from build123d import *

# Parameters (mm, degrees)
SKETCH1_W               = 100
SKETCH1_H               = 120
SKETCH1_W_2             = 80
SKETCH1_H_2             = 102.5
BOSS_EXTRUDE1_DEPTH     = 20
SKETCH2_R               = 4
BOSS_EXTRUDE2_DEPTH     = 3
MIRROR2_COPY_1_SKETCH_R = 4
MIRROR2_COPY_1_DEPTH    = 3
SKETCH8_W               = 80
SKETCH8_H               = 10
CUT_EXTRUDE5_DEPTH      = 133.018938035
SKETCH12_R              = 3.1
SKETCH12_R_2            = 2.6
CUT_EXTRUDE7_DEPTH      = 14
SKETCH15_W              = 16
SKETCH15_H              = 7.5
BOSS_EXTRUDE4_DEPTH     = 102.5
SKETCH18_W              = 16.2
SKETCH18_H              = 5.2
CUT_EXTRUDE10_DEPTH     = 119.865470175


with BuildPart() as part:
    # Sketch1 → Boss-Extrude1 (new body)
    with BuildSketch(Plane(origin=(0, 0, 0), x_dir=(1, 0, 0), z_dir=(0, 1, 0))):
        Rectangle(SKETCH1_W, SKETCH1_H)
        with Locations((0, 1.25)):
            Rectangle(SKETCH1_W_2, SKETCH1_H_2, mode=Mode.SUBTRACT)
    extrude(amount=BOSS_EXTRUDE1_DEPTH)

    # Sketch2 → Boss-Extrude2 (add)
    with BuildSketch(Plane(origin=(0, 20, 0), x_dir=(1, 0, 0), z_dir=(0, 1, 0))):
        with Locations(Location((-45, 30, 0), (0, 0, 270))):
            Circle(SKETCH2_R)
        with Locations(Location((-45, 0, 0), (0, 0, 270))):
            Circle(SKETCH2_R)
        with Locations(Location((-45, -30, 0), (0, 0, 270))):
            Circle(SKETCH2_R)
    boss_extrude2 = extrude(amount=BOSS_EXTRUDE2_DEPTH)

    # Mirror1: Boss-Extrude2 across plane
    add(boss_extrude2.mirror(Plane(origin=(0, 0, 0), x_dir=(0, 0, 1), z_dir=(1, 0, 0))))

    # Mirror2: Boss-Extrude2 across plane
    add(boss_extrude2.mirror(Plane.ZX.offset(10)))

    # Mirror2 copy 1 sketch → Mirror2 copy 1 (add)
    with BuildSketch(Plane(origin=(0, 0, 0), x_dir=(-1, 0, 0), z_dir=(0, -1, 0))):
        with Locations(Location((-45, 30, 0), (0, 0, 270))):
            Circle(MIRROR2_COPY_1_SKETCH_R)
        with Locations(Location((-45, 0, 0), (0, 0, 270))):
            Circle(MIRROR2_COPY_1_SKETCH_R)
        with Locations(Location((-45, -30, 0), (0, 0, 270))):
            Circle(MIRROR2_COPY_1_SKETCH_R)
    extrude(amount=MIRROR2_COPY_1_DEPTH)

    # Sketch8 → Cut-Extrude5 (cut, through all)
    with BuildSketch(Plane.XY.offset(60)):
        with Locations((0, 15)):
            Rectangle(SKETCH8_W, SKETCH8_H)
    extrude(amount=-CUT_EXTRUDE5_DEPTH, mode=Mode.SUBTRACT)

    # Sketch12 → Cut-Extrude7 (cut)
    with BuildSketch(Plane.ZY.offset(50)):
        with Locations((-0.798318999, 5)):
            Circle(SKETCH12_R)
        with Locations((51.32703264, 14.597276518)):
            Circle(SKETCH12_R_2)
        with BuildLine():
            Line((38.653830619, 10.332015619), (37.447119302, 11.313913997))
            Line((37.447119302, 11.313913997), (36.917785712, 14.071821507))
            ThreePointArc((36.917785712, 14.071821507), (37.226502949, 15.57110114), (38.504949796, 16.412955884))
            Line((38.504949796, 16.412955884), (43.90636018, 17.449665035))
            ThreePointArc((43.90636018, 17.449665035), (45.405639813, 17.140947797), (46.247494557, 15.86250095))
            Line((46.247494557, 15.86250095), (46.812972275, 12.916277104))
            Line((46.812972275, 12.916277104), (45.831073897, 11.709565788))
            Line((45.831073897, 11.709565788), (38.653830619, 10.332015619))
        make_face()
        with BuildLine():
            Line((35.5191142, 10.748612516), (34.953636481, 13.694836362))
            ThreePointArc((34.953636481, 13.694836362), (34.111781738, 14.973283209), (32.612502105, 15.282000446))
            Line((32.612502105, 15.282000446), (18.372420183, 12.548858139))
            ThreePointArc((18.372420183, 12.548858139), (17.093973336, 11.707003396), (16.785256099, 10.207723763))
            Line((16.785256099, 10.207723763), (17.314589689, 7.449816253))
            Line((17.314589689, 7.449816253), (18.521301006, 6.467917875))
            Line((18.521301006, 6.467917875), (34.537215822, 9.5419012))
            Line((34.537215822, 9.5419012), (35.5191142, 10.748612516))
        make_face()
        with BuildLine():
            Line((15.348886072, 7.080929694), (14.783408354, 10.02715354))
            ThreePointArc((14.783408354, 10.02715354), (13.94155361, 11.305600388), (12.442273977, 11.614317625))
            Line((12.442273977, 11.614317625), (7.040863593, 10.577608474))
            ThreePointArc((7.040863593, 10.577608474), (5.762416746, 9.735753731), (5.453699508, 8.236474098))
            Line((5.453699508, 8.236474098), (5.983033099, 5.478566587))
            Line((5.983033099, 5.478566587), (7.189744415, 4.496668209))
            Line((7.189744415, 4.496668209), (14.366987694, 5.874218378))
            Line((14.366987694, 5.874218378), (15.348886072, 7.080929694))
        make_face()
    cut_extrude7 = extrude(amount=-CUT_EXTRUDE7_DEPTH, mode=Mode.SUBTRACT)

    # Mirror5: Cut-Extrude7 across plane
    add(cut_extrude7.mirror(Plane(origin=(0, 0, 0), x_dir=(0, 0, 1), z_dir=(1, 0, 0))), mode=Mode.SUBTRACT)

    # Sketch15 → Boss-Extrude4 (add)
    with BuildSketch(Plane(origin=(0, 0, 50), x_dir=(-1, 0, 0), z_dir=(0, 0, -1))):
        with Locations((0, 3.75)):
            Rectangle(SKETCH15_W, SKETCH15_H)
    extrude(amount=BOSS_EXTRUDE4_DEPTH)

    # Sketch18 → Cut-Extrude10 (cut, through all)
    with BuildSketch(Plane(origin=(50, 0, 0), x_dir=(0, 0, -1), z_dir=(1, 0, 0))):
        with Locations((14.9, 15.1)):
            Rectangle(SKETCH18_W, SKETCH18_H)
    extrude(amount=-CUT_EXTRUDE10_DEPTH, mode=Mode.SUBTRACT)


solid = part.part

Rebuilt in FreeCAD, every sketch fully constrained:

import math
import FreeCAD as App
import Part
import Sketcher

V = App.Vector
Q = App.Units.Quantity

doc = App.newDocument("Part")
body = doc.addObject("PartDesign::Body", "Body")

sketch1 = body.newObject("Sketcher::SketchObject", "Sketch")
sketch1.AttachmentSupport = (doc.getObject("XZ_Plane"), [""])
sketch1.MapMode = "FlatFace"
sketch1.addGeometry([
    Part.LineSegment(V(-50, -60, 0), V(-50, 60, 0)),
    Part.LineSegment(V(-50, 60, 0), V(50, 60, 0)),
    Part.LineSegment(V(50, 60, 0), V(50, -60, 0)),
    Part.LineSegment(V(50, -60, 0), V(-50, -60, 0)),
    Part.LineSegment(V(40, 50, 0), V(-40, 50, 0)),
    Part.LineSegment(V(-40, 50, 0), V(-40, -52.5, 0)),
    Part.LineSegment(V(-40, -52.5, 0), V(40, -52.5, 0)),
    Part.LineSegment(V(40, -52.5, 0), V(40, 50, 0)),
], False)
sketch1.addConstraint([
    Sketcher.Constraint("Coincident", 0, 2, 1, 1),
    Sketcher.Constraint("Coincident", 1, 2, 2, 1),
    Sketcher.Constraint("Coincident", 2, 2, 3, 1),
    Sketcher.Constraint("Coincident", 3, 2, 0, 1),
    Sketcher.Constraint("Coincident", 4, 2, 5, 1),
    Sketcher.Constraint("Coincident", 5, 2, 6, 1),
    Sketcher.Constraint("Coincident", 6, 2, 7, 1),
    Sketcher.Constraint("Coincident", 7, 2, 4, 1),
    Sketcher.Constraint("Vertical", 0),
    Sketcher.Constraint("Horizontal", 1),
    Sketcher.Constraint("Vertical", 2),
    Sketcher.Constraint("Horizontal", 3),
    Sketcher.Constraint("Horizontal", 4),
    Sketcher.Constraint("Vertical", 5),
    Sketcher.Constraint("Horizontal", 6),
    Sketcher.Constraint("Vertical", 7),
    Sketcher.Constraint("Symmetric", 0, 2, 2, 2, -1, 1),
    Sketcher.Constraint("DistanceX", 1, 1, 1, 2, Q("100 mm")),
    Sketcher.Constraint("DistanceX", 4, 2, 4, 1, Q("80 mm")),
    Sketcher.Constraint("DistanceY", 0, 1, 0, 2, Q("120 mm")),
    Sketcher.Constraint("DistanceY", 5, 2, 5, 1, Q("102.5 mm")),
    Sketcher.Constraint("DistanceX", 4, 2, -1, 1, Q("40 mm")),
    Sketcher.Constraint("DistanceY", -1, 1, 4, 2, Q("50 mm")),
])
pad1 = body.newObject("PartDesign::Pad", "Pad")
pad1.Profile = sketch1
pad1.Length = 20
pad1.Reversed = True

sketch2 = body.newObject("Sketcher::SketchObject", "Sketch001")
sketch2.AttachmentSupport = (doc.getObject("XZ_Plane"), [""])
sketch2.MapMode = "FlatFace"
sketch2.AttachmentOffset = App.Placement(V(0, 0, -20), App.Rotation())
sketch2.addGeometry([
    Part.Circle(V(-45, -30, 0), V(0, 0, 1), 4),
    Part.Circle(V(-45, 0, 0), V(0, 0, 1), 4),
    Part.Circle(V(-45, 30, 0), V(0, 0, 1), 4),
], False)
sketch2.addConstraint([
    Sketcher.Constraint("Equal", 0, 1),
    Sketcher.Constraint("Equal", 1, 2),
    Sketcher.Constraint("Symmetric", 0, 3, 2, 3, -1),
    Sketcher.Constraint("PointOnObject", 1, 3, -1),
    Sketcher.Constraint("Vertical", 0, 3, 1, 3),
    Sketcher.Constraint("Diameter", 0, Q("8 mm")),
    Sketcher.Constraint("DistanceX", 0, 3, -1, 1, Q("45 mm")),
    Sketcher.Constraint("DistanceY", 0, 3, -1, 1, Q("30 mm")),
])
pad2 = body.newObject("PartDesign::Pad", "Pad001")
pad2.Profile = sketch2
pad2.Length = 3
pad2.Reversed = True
doc.recompute()

mirrored = body.newObject("PartDesign::Mirrored", "Mirrored")
mirrored.Originals = [pad2]
mirrored.MirrorPlane = (doc.getObject("YZ_Plane"), [""])
body.Tip = mirrored
doc.recompute()

datumplane = body.newObject("PartDesign::Plane", "DatumPlane")
datumplane.AttachmentSupport = (doc.getObject("XZ_Plane"), [""])
datumplane.MapMode = "FlatFace"
datumplane.AttachmentOffset = App.Placement(V(0, 0, -10), App.Rotation())
mirrored2 = body.newObject("PartDesign::Mirrored", "Mirrored001")
mirrored2.Originals = [pad2]
mirrored2.MirrorPlane = (datumplane, [""])
body.Tip = mirrored2

sketch3 = body.newObject("Sketcher::SketchObject", "Sketch002")
sketch3.AttachmentSupport = (doc.getObject("XZ_Plane"), [""])
sketch3.MapMode = "FlatFace"
sketch3.addGeometry([
    Part.Circle(V(45, -30, 0), V(0, 0, 1), 4),
    Part.Circle(V(45, 0, 0), V(0, 0, 1), 4),
    Part.Circle(V(45, 30, 0), V(0, 0, 1), 4),
], False)
sketch3.addConstraint([
    Sketcher.Constraint("Equal", 0, 1),
    Sketcher.Constraint("Equal", 1, 2),
    Sketcher.Constraint("Symmetric", 0, 3, 2, 3, -1),
    Sketcher.Constraint("PointOnObject", 1, 3, -1),
    Sketcher.Constraint("Vertical", 0, 3, 1, 3),
    Sketcher.Constraint("Diameter", 0, Q("8 mm")),
    Sketcher.Constraint("DistanceX", -1, 1, 0, 3, Q("45 mm")),
    Sketcher.Constraint("DistanceY", 0, 3, -1, 1, Q("30 mm")),
])
pad3 = body.newObject("PartDesign::Pad", "Pad002")
pad3.Profile = sketch3
pad3.Length = 3

sketch4 = body.newObject("Sketcher::SketchObject", "Sketch003")
sketch4.AttachmentSupport = (doc.getObject("XY_Plane"), [""])
sketch4.MapMode = "FlatFace"
sketch4.AttachmentOffset = App.Placement(V(0, 0, 60), App.Rotation())
sketch4.addGeometry([
    Part.LineSegment(V(-40, 20, 0), V(-40, 10, 0)),
    Part.LineSegment(V(-40, 10, 0), V(40, 10, 0)),
    Part.LineSegment(V(40, 10, 0), V(40, 20, 0)),
    Part.LineSegment(V(40, 20, 0), V(-40, 20, 0)),
], False)
sketch4.addConstraint([
    Sketcher.Constraint("Coincident", 0, 2, 1, 1),
    Sketcher.Constraint("Coincident", 1, 2, 2, 1),
    Sketcher.Constraint("Coincident", 2, 2, 3, 1),
    Sketcher.Constraint("Coincident", 3, 2, 0, 1),
    Sketcher.Constraint("Vertical", 0),
    Sketcher.Constraint("Horizontal", 1),
    Sketcher.Constraint("Vertical", 2),
    Sketcher.Constraint("Horizontal", 3),
    Sketcher.Constraint("DistanceX", 1, 1, 1, 2, Q("80 mm")),
    Sketcher.Constraint("DistanceY", 0, 2, 0, 1, Q("10 mm")),
    Sketcher.Constraint("DistanceX", 0, 2, -1, 1, Q("40 mm")),
    Sketcher.Constraint("DistanceY", -1, 1, 0, 2, Q("10 mm")),
])
pocket1 = body.newObject("PartDesign::Pocket", "Pocket")
pocket1.Profile = sketch4
pocket1.Type = "ThroughAll"

sketch5 = body.newObject("Sketcher::SketchObject", "Sketch004")
sketch5.AttachmentSupport = (doc.getObject("YZ_Plane"), [""])
sketch5.MapMode = "FlatFace"
sketch5.AttachmentOffset = App.Placement(V(0, 0, -50), App.Rotation())
sketch5.addGeometry([
    Part.Circle(V(5, -0.798319, 0), V(0, 0, 1), 3.1),
    Part.Circle(V(14.597277, 51.327033, 0), V(0, 0, 1), 2.6),
    Part.LineSegment(V(11.313914, 37.447119, 0), V(10.332016, 38.653831, 0)),
    Part.LineSegment(V(10.332016, 38.653831, 0), V(11.709566, 45.831074, 0)),
    Part.LineSegment(V(11.709566, 45.831074, 0), V(12.916277, 46.812972, 0)),
    Part.LineSegment(V(12.916277, 46.812972, 0), V(15.862501, 46.247495, 0)),
    Part.ArcOfCircle(Part.Circle(V(15.485516, 44.283345, 0), V(0, 0, 1), 2), math.radians(-10.864825), math.radians(79.135174)),
    Part.LineSegment(V(17.449665, 43.90636, 0), V(16.412956, 38.50495, 0)),
    Part.ArcOfCircle(Part.Circle(V(14.448807, 38.881935, 0), V(0, 0, 1), 2), math.radians(-100.864826), math.radians(-10.864826)),
    Part.LineSegment(V(14.071822, 36.917786, 0), V(11.313914, 37.447119, 0)),
    Part.LineSegment(V(10.748613, 35.519114, 0), V(13.694836, 34.953636, 0)),
    Part.ArcOfCircle(Part.Circle(V(13.317851, 32.989487, 0), V(0, 0, 1), 2), math.radians(-10.864826), math.radians(79.135174)),
    Part.LineSegment(V(15.282, 32.612502, 0), V(12.548858, 18.37242, 0)),
    Part.ArcOfCircle(Part.Circle(V(10.584709, 18.749405, 0), V(0, 0, 1), 2), math.radians(-100.864826), math.radians(-10.864826)),
    Part.LineSegment(V(10.207724, 16.785256, 0), V(7.449816, 17.31459, 0)),
    Part.LineSegment(V(7.449816, 17.31459, 0), V(6.467918, 18.521301, 0)),
    Part.LineSegment(V(6.467918, 18.521301, 0), V(9.541901, 34.537216, 0)),
    Part.LineSegment(V(9.541901, 34.537216, 0), V(10.748613, 35.519114, 0)),
    Part.LineSegment(V(7.08093, 15.348886, 0), V(10.027154, 14.783408, 0)),
    Part.ArcOfCircle(Part.Circle(V(9.650168, 12.819259, 0), V(0, 0, 1), 2), math.radians(-10.864826), math.radians(79.135174)),
    Part.LineSegment(V(11.614318, 12.442274, 0), V(10.577608, 7.040864, 0)),
    Part.ArcOfCircle(Part.Circle(V(8.613459, 7.417849, 0), V(0, 0, 1), 2), math.radians(-100.864826), math.radians(-10.864826)),
    Part.LineSegment(V(8.236474, 5.4537, 0), V(5.478567, 5.983033, 0)),
    Part.LineSegment(V(5.478567, 5.983033, 0), V(4.496668, 7.189744, 0)),
    Part.LineSegment(V(4.496668, 7.189744, 0), V(5.874218, 14.366988, 0)),
    Part.LineSegment(V(5.874218, 14.366988, 0), V(7.08093, 15.348886, 0)),
], False)
sketch5.addConstraint([
    Sketcher.Constraint("Coincident", 2, 2, 3, 1),
    Sketcher.Constraint("Coincident", 3, 2, 4, 1),
    Sketcher.Constraint("Coincident", 4, 2, 5, 1),
    Sketcher.Constraint("Tangent", 5, 2, 6, 2),
    Sketcher.Constraint("Tangent", 6, 1, 7, 1),
    Sketcher.Constraint("Tangent", 7, 2, 8, 2),
    Sketcher.Constraint("Tangent", 8, 1, 9, 1),
    Sketcher.Constraint("Coincident", 9, 2, 2, 1),
    Sketcher.Constraint("Tangent", 10, 2, 11, 2),
    Sketcher.Constraint("Tangent", 11, 1, 12, 1),
    Sketcher.Constraint("Tangent", 12, 2, 13, 2),
    Sketcher.Constraint("Tangent", 13, 1, 14, 1),
    Sketcher.Constraint("Coincident", 14, 2, 15, 1),
    Sketcher.Constraint("Coincident", 15, 2, 16, 1),
    Sketcher.Constraint("Coincident", 16, 2, 17, 1),
    Sketcher.Constraint("Coincident", 17, 2, 10, 1),
    Sketcher.Constraint("Tangent", 18, 2, 19, 2),
    Sketcher.Constraint("Tangent", 19, 1, 20, 1),
    Sketcher.Constraint("Tangent", 20, 2, 21, 2),
    Sketcher.Constraint("Tangent", 21, 1, 22, 1),
    Sketcher.Constraint("Coincident", 22, 2, 23, 1),
    Sketcher.Constraint("Coincident", 23, 2, 24, 1),
    Sketcher.Constraint("Coincident", 24, 2, 25, 1),
    Sketcher.Constraint("Coincident", 25, 2, 18, 1),
    Sketcher.Constraint("Equal", 6, 8),
    Sketcher.Constraint("Equal", 8, 11),
    Sketcher.Constraint("Equal", 11, 13),
    Sketcher.Constraint("Equal", 13, 19),
    Sketcher.Constraint("Equal", 19, 21),
    Sketcher.Constraint("Perpendicular", 2, 4),
    Sketcher.Constraint("Perpendicular", 3, 5),
    Sketcher.Constraint("Perpendicular", 5, 7),
    Sketcher.Constraint("Perpendicular", 7, 9),
    Sketcher.Constraint("Parallel", 9, 10),
    Sketcher.Constraint("Perpendicular", 10, 12),
    Sketcher.Constraint("Perpendicular", 12, 14),
    Sketcher.Constraint("Perpendicular", 4, 15),
    Sketcher.Constraint("Perpendicular", 14, 16),
    Sketcher.Constraint("Perpendicular", 15, 17),
    Sketcher.Constraint("Perpendicular", 16, 18),
    Sketcher.Constraint("Perpendicular", 18, 20),
    Sketcher.Constraint("Perpendicular", 20, 22),
    Sketcher.Constraint("Perpendicular", 17, 23),
    Sketcher.Constraint("Perpendicular", 22, 24),
    Sketcher.Constraint("Perpendicular", 23, 25),
    Sketcher.Constraint("Equal", 2, 4),
    Sketcher.Constraint("Equal", 5, 10),
    Sketcher.Constraint("Equal", 9, 14),
    Sketcher.Constraint("Equal", 4, 15),
    Sketcher.Constraint("Equal", 10, 18),
    Sketcher.Constraint("Equal", 7, 20),
    Sketcher.Constraint("Equal", 14, 22),
    Sketcher.Constraint("Equal", 17, 23),
    Sketcher.Constraint("Radius", 6, Q("2 mm")),
    Sketcher.Constraint("Diameter", 0, Q("6.2 mm")),
    Sketcher.Constraint("Diameter", 1, Q("5.2 mm")),
    Sketcher.Constraint("Distance", 5, Q("3 mm")),
    Sketcher.Constraint("DistanceX", -1, 1, 0, 3, Q("5 mm")),
    Sketcher.Constraint("Distance", 7, Q("5.5 mm")),
    Sketcher.Constraint("Distance", 12, Q("14.5 mm")),
    Sketcher.Constraint("DistanceX", -1, 1, 11, 1, Q("15.282 mm")),
    Sketcher.Constraint("DistanceX", 4, 2, 1, 3, Q("1.680999 mm")),
    Sketcher.Constraint("DistanceX", -1, 1, 5, 2, Q("15.862501 mm")),
    Sketcher.Constraint("DistanceY", -1, 1, 15, 2, Q("18.521301 mm")),
    Sketcher.Constraint("DistanceX", -1, 1, 16, 2, Q("9.541901 mm")),
    Sketcher.Constraint("DistanceY", -1, 1, 21, 1, Q("5.4537 mm")),
    Sketcher.Constraint("DistanceX", 2, 2, 6, 3, Q("5.1535 mm")),
    Sketcher.Constraint("DistanceY", 3, 2, 4, 2, Q("0.981898 mm")),
    Sketcher.Constraint("DistanceY", 11, 3, 8, 1, Q("3.928298 mm")),
    Sketcher.Constraint("DistanceX", 21, 3, 12, 2, Q("3.935399 mm")),
    Sketcher.Constraint("DistanceY", 0, 3, -1, 1, Q("0.798319 mm")),
    Sketcher.Constraint("DistanceY", 0, 3, 1, 3, Q("52.125352 mm")),
])
pocket2 = body.newObject("PartDesign::Pocket", "Pocket001")
pocket2.Profile = sketch5
pocket2.Length = 14
pocket2.Reversed = True
doc.recompute()

mirrored3 = body.newObject("PartDesign::Mirrored", "Mirrored002")
mirrored3.Originals = [pocket2]
mirrored3.MirrorPlane = (doc.getObject("YZ_Plane"), [""])
body.Tip = mirrored3

sketch6 = body.newObject("Sketcher::SketchObject", "Sketch005")
sketch6.AttachmentSupport = (doc.getObject("XY_Plane"), [""])
sketch6.MapMode = "FlatFace"
sketch6.AttachmentOffset = App.Placement(V(0, 0, 50), App.Rotation())
sketch6.addGeometry([
    Part.LineSegment(V(8, 7.5, 0), V(8, 0, 0)),
    Part.LineSegment(V(8, 0, 0), V(-8, 0, 0)),
    Part.LineSegment(V(-8, 0, 0), V(-8, 7.5, 0)),
    Part.LineSegment(V(-8, 7.5, 0), V(8, 7.5, 0)),
], False)
sketch6.addConstraint([
    Sketcher.Constraint("Coincident", 0, 2, 1, 1),
    Sketcher.Constraint("Coincident", 1, 2, 2, 1),
    Sketcher.Constraint("Coincident", 2, 2, 3, 1),
    Sketcher.Constraint("Coincident", 3, 2, 0, 1),
    Sketcher.Constraint("Vertical", 0),
    Sketcher.Constraint("Horizontal", 1),
    Sketcher.Constraint("Vertical", 2),
    Sketcher.Constraint("Horizontal", 3),
    Sketcher.Constraint("Symmetric", 0, 2, 1, 2, -1, 1),
    Sketcher.Constraint("DistanceX", 1, 2, 1, 1, Q("16 mm")),
    Sketcher.Constraint("DistanceY", 0, 2, 0, 1, Q("7.5 mm")),
])
pad4 = body.newObject("PartDesign::Pad", "Pad003")
pad4.Profile = sketch6
pad4.Length = 102.5
pad4.Reversed = True

sketch7 = body.newObject("Sketcher::SketchObject", "Sketch006")
sketch7.AttachmentSupport = (doc.getObject("YZ_Plane"), [""])
sketch7.MapMode = "FlatFace"
sketch7.AttachmentOffset = App.Placement(V(0, 0, 50), App.Rotation())
sketch7.addGeometry([
    Part.LineSegment(V(17.7, -6.8, 0), V(12.5, -6.8, 0)),
    Part.LineSegment(V(12.5, -6.8, 0), V(12.5, -23, 0)),
    Part.LineSegment(V(12.5, -23, 0), V(17.7, -23, 0)),
    Part.LineSegment(V(17.7, -23, 0), V(17.7, -6.8, 0)),
], False)
sketch7.addConstraint([
    Sketcher.Constraint("Coincident", 0, 2, 1, 1),
    Sketcher.Constraint("Coincident", 1, 2, 2, 1),
    Sketcher.Constraint("Coincident", 2, 2, 3, 1),
    Sketcher.Constraint("Coincident", 3, 2, 0, 1),
    Sketcher.Constraint("Horizontal", 0),
    Sketcher.Constraint("Vertical", 1),
    Sketcher.Constraint("Horizontal", 2),
    Sketcher.Constraint("Vertical", 3),
    Sketcher.Constraint("DistanceX", 0, 2, 0, 1, Q("5.2 mm")),
    Sketcher.Constraint("DistanceY", 1, 2, 1, 1, Q("16.2 mm")),
    Sketcher.Constraint("DistanceY", 1, 2, -1, 1, Q("23 mm")),
    Sketcher.Constraint("DistanceX", -1, 1, 0, 2, Q("12.5 mm")),
])
pocket3 = body.newObject("PartDesign::Pocket", "Pocket002")
pocket3.Profile = sketch7
pocket3.Type = "ThroughAll"

doc.recompute()
